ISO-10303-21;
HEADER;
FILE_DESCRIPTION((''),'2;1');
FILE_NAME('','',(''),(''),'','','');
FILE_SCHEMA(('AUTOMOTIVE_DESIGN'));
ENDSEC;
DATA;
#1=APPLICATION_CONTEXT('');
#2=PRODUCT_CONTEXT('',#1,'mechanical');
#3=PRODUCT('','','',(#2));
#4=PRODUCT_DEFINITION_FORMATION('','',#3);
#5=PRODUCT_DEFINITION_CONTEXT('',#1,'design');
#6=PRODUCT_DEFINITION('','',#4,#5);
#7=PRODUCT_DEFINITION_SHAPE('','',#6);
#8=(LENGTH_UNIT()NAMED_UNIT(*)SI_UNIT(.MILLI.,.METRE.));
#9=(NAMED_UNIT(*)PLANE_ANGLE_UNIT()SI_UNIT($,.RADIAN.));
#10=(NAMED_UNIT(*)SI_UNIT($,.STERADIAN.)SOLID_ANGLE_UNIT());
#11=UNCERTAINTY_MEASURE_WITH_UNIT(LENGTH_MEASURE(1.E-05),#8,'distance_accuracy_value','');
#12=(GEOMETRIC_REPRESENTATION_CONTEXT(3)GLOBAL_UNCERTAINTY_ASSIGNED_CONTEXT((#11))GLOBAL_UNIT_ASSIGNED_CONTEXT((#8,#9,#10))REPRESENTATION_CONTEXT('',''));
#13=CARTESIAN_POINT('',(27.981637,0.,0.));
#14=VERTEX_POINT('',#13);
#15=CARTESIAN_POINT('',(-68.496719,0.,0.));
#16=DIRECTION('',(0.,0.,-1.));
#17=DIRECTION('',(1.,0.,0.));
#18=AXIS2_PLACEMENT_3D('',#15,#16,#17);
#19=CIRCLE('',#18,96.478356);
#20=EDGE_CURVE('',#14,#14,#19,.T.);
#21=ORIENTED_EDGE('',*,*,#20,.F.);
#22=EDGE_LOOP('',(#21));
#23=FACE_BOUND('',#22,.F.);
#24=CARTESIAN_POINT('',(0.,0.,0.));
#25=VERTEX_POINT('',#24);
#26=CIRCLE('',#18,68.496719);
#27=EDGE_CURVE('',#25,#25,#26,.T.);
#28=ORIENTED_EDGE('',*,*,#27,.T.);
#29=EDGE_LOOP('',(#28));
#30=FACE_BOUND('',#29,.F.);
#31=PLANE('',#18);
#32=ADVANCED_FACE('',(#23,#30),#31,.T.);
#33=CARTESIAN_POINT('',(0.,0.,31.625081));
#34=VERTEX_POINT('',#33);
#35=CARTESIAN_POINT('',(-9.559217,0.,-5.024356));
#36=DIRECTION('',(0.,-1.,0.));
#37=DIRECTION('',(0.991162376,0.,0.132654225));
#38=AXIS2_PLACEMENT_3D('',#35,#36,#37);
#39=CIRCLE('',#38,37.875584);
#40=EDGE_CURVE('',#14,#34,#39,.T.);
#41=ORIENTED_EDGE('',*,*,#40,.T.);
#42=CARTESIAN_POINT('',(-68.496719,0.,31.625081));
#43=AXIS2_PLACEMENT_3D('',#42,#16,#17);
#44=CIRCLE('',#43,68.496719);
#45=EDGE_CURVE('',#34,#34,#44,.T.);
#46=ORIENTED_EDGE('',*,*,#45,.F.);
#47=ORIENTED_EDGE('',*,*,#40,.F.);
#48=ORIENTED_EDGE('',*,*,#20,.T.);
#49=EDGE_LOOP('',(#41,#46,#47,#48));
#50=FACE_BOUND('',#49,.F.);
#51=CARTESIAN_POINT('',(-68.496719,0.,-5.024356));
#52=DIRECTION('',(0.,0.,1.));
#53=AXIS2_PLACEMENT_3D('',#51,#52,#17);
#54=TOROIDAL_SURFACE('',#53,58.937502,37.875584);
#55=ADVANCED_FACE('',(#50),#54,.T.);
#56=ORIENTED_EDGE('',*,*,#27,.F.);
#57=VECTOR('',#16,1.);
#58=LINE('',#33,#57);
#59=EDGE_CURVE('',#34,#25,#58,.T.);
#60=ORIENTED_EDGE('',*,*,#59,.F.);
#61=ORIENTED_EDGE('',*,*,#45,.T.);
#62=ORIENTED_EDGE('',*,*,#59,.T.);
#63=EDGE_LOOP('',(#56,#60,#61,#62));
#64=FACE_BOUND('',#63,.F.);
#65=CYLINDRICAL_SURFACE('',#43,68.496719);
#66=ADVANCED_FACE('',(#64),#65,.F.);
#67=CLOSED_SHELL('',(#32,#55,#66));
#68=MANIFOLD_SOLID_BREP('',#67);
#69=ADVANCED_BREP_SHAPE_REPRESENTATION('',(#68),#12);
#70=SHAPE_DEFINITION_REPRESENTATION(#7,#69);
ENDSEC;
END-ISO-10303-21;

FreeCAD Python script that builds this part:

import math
import FreeCAD as App
import Part
import Sketcher
from FreeCAD import Vector
Q = App.Units.Quantity

doc = App.newDocument("Part")
body = doc.addObject("PartDesign::Body", "Body")

# Sketch on XZ plane
sketch1 = doc.addObject("Sketcher::SketchObject", "Sketch")
body.addObject(sketch1)
sketch1.AttachmentSupport = (doc.XZ_Plane, [""])
sketch1.MapMode = "FlatFace"
sketch1.addGeometry(Part.ArcOfCircle(Part.Circle(Vector(-10, -5, 0), Vector(0, 0, 1), 38), math.radians(8), math.radians(75)), False)
sketch1.addGeometry(Part.LineSegment(Vector(0, 32, 0), Vector(0, 0, 0)), False)
sketch1.addGeometry(Part.LineSegment(Vector(0, 0, 0), Vector(28, 0, 0)), False)
sketch1.addGeometry(Part.LineSegment(Vector(-68, 32, 0), Vector(-68, -5, 0)), True)  # axis
sketch1.addConstraint(Sketcher.Constraint("Coincident", 0, 2, 1, 1))
sketch1.addConstraint(Sketcher.Constraint("Coincident", 1, 2, 2, 1))
sketch1.addConstraint(Sketcher.Constraint("Coincident", 2, 2, 0, 1))
sketch1.addConstraint(Sketcher.Constraint("Vertical", 1))
sketch1.addConstraint(Sketcher.Constraint("Horizontal", 2))
sketch1.addConstraint(Sketcher.Constraint("Vertical", 3))
sketch1.addConstraint(Sketcher.Constraint("Coincident", 1, 2, -1, 1))
sketch1.addConstraint(Sketcher.Constraint("Horizontal", 0, 2, 3, 1))
sketch1.addConstraint(Sketcher.Constraint("Horizontal", 0, 3, 3, 2))
sketch1.addConstraint(Sketcher.Constraint("Radius", 0, Q("37.875584 mm")))
sketch1.addConstraint(Sketcher.Constraint("DistanceY", 1, 2, 1, 1, Q("31.625081 mm")))
sketch1.addConstraint(Sketcher.Constraint("DistanceX", 3, 1, 0, 3, Q("58.937502 mm")))
sketch1.addConstraint(Sketcher.Constraint("DistanceX", 2, 1, 2, 2, Q("27.981637 mm")))
revolution = doc.addObject("PartDesign::Revolution", "Revolution")
body.addObject(revolution)
revolution.Profile = sketch1
revolution.ReferenceAxis = (sketch1, ["Axis0"])
revolution.Angle = 360

doc.recompute()
